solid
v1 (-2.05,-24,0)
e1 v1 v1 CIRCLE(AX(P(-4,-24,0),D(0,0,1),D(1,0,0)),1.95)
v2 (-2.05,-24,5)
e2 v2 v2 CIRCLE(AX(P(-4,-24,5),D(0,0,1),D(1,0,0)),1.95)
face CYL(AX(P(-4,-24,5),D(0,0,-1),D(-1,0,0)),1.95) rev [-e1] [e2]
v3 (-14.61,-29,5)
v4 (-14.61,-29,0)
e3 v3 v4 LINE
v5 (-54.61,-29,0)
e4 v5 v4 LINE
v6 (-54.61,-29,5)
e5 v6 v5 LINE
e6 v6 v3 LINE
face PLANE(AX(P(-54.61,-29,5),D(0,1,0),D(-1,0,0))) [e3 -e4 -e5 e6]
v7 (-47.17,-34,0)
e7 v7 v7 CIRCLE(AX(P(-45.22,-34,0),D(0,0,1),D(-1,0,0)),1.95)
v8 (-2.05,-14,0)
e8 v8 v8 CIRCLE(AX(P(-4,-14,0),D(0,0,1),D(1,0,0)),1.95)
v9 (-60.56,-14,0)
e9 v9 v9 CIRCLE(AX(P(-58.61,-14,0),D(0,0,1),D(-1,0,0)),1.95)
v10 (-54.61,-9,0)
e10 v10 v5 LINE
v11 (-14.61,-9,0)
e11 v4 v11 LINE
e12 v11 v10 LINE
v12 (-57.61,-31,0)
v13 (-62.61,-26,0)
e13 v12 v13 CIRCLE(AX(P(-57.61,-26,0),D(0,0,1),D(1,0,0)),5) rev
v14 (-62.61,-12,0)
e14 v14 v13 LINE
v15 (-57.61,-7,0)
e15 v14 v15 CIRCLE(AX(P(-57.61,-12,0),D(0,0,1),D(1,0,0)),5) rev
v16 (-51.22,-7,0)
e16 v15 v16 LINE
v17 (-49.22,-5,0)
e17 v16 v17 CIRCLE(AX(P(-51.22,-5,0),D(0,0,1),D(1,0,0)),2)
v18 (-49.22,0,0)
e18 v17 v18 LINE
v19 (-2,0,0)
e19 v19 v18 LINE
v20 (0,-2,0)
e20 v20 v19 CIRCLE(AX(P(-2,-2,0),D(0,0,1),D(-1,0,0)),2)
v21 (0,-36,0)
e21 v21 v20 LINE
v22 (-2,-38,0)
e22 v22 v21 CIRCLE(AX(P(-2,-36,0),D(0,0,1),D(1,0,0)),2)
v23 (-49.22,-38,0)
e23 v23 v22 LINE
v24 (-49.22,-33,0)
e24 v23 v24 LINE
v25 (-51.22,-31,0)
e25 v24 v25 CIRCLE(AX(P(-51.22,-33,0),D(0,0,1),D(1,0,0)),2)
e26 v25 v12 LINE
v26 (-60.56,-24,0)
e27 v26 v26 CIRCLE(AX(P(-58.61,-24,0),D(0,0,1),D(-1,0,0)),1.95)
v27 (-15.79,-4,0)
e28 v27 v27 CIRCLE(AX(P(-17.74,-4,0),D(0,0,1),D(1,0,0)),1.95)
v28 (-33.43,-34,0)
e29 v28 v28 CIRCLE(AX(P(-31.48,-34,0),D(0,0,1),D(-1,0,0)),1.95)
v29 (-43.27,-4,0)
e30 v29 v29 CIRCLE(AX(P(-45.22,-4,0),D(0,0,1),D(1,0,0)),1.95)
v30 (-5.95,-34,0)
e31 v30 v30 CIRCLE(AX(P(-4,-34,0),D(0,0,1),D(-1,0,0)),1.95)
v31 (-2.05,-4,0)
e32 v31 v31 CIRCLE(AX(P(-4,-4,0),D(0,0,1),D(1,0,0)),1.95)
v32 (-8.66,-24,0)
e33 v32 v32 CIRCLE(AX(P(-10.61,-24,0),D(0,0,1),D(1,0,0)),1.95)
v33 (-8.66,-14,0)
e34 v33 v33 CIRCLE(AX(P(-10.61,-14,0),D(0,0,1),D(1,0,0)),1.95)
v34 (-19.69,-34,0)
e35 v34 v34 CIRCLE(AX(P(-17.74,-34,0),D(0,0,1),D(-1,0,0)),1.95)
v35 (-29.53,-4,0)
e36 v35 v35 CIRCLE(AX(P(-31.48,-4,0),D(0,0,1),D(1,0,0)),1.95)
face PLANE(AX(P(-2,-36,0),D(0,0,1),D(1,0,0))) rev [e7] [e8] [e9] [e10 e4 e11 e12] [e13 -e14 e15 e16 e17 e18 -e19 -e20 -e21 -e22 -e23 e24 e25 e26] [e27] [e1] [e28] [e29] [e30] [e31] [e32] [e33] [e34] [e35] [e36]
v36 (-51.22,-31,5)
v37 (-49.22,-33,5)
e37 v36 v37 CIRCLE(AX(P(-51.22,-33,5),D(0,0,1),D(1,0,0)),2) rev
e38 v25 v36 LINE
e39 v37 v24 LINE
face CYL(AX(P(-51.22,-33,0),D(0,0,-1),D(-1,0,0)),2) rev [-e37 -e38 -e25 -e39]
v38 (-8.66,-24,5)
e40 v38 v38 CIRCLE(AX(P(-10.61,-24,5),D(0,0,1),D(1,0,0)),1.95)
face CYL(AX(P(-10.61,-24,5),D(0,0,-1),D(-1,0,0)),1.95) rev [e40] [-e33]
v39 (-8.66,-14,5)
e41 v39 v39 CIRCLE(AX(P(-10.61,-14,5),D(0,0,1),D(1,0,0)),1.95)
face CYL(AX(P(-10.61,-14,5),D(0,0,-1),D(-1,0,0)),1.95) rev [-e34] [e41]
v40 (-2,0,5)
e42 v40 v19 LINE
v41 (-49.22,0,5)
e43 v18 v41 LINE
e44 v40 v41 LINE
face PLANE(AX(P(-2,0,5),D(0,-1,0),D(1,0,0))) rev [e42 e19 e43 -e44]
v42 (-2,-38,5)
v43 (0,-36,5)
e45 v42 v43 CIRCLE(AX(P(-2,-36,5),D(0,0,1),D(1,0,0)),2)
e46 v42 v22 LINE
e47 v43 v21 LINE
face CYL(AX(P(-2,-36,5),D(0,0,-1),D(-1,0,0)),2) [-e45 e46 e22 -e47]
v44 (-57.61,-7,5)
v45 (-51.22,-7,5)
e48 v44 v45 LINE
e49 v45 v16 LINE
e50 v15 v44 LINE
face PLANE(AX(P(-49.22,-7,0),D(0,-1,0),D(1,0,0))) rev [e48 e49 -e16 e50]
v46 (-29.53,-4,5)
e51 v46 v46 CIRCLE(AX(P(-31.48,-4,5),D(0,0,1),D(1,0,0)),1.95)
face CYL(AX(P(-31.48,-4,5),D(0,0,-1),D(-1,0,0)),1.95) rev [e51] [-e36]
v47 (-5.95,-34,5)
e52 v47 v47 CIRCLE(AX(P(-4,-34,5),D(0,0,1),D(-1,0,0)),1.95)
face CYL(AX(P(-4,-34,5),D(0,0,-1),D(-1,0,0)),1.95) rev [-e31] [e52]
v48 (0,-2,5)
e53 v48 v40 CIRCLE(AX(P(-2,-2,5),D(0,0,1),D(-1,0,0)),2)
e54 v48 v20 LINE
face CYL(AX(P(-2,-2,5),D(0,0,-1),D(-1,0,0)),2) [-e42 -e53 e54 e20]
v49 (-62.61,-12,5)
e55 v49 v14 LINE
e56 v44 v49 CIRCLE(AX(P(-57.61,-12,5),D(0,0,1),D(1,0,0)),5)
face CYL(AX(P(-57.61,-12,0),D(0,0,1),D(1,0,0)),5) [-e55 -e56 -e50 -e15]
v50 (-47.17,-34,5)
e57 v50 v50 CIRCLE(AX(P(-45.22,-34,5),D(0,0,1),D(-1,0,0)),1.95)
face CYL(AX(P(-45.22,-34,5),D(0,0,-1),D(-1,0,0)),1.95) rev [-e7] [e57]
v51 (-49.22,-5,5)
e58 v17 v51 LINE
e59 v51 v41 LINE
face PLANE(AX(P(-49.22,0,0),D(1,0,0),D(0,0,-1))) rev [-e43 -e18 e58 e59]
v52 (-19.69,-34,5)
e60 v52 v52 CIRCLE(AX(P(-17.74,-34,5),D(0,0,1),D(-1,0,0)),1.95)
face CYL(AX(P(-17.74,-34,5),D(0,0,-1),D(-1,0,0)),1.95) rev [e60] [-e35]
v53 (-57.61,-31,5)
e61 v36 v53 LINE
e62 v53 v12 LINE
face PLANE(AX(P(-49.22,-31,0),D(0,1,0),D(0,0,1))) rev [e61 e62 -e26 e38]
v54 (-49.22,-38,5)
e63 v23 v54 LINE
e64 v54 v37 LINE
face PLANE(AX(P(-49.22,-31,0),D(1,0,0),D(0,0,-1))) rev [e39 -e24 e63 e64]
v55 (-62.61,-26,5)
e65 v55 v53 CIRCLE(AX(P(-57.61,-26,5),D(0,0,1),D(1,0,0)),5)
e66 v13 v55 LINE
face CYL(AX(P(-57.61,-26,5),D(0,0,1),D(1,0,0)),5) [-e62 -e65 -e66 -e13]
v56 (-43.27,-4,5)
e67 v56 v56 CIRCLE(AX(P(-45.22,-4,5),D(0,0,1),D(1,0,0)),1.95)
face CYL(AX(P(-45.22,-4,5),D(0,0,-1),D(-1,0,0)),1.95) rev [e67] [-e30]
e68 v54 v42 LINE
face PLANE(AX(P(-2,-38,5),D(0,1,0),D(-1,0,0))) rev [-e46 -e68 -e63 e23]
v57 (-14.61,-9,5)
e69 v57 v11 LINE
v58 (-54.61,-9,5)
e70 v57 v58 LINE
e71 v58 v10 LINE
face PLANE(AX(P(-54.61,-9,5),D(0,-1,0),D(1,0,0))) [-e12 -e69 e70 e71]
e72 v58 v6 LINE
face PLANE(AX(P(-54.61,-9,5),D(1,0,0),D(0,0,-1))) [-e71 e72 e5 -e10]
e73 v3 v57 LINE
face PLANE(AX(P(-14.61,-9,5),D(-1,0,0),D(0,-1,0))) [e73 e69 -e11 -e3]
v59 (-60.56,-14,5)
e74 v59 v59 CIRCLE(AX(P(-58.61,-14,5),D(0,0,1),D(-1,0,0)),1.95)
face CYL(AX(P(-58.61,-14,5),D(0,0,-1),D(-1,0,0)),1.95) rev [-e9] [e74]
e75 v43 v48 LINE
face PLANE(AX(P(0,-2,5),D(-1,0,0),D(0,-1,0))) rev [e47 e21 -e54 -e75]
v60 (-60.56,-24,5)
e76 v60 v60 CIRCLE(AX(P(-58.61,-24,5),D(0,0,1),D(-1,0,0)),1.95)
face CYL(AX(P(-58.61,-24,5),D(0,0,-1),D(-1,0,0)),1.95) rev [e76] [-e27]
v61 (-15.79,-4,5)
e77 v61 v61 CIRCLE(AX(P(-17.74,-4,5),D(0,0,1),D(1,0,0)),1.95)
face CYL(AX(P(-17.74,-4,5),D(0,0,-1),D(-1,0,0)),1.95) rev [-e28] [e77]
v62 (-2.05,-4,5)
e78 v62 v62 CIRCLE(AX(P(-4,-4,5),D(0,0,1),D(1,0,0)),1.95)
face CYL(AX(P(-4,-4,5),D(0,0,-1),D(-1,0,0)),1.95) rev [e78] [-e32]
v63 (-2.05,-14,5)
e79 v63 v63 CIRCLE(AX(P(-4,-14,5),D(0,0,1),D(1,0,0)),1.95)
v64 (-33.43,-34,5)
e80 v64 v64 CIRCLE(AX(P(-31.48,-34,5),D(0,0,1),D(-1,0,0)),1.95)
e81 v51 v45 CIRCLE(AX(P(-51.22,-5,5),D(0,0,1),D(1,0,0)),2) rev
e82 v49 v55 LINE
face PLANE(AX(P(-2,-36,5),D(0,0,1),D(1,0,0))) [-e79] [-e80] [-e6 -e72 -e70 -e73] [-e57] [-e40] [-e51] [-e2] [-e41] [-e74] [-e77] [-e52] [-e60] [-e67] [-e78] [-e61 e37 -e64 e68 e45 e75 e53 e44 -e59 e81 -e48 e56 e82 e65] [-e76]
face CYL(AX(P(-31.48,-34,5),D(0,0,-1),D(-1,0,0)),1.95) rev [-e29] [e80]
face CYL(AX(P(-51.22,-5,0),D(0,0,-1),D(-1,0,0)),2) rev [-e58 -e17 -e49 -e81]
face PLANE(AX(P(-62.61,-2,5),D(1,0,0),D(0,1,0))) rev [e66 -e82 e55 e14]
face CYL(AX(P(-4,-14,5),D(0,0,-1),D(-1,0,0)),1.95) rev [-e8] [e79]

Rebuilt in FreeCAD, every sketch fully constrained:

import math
import FreeCAD as App
import Part
import Sketcher


def edges_at(feature, points):
    """Names of the edges that pass closest to the given points."""
    edges = feature.Shape.Edges
    near = lambda p: min(range(len(edges)), key=lambda i: edges[i].distToShape(Part.Vertex(*p))[0])
    return sorted({f"Edge{near(p) + 1}" for p in points})

doc = App.newDocument("Part")
body = doc.addObject("PartDesign::Body", "Body")

# Sketch on XY plane
sketch1 = body.newObject("Sketcher::SketchObject", "Sketch")
sketch1.AttachmentSupport = (doc.getObject("XY_Plane"), [""])
sketch1.MapMode = "FlatFace"
sketch1.addGeometry([
    Part.LineSegment(App.Vector(-2, 0, 0), App.Vector(-60.6, 0, 0)),  # 0
    Part.ArcOfCircle(Part.Circle(App.Vector(-60.6, -2, 0), App.Vector(0, 0, 1), 2), math.radians(90), math.radians(180)),  # 1
    Part.LineSegment(App.Vector(-62.6, -2, 0), App.Vector(-62.6, -36, 0)),  # 2
    Part.ArcOfCircle(Part.Circle(App.Vector(-60.6, -36, 0), App.Vector(0, 0, 1), 2), math.radians(-180), math.radians(-90)),  # 3
    Part.LineSegment(App.Vector(-60.6, -38, 0), App.Vector(-2, -38, 0)),  # 4
    Part.ArcOfCircle(Part.Circle(App.Vector(-2, -36, 0), App.Vector(0, 0, 1), 2), math.radians(-90), math.radians(0)),  # 5
    Part.LineSegment(App.Vector(0, -36, 0), App.Vector(0, -2, 0)),  # 6
    Part.ArcOfCircle(Part.Circle(App.Vector(-2, -2, 0), App.Vector(0, 0, 1), 2), math.radians(0), math.radians(90)),  # 7
    Part.Circle(App.Vector(-58.6, -34, 0), App.Vector(0, 0, 1), 1.9),  # 8
    Part.Circle(App.Vector(-45.2, -34, 0), App.Vector(0, 0, 1), 1.9),  # 9
    Part.Circle(App.Vector(-31.5, -34, 0), App.Vector(0, 0, 1), 1.9),  # 10
    Part.Circle(App.Vector(-58.6, -24, 0), App.Vector(0, 0, 1), 1.9),  # 11
    Part.Circle(App.Vector(-17.7, -34, 0), App.Vector(0, 0, 1), 1.9),  # 12
    Part.Circle(App.Vector(-4, -34, 0), App.Vector(0, 0, 1), 1.9),  # 13
    Part.Circle(App.Vector(-10.6, -24, 0), App.Vector(0, 0, 1), 1.9),  # 14
    Part.Circle(App.Vector(-4, -24, 0), App.Vector(0, 0, 1), 1.9),  # 15
    Part.Circle(App.Vector(-58.6, -14, 0), App.Vector(0, 0, 1), 1.9),  # 16
    Part.LineSegment(App.Vector(-14.6, -29, 0), App.Vector(-54.6, -29, 0)),  # 17
    Part.LineSegment(App.Vector(-54.6, -29, 0), App.Vector(-54.6, -9, 0)),  # 18
    Part.LineSegment(App.Vector(-54.6, -9, 0), App.Vector(-14.6, -9, 0)),  # 19
    Part.LineSegment(App.Vector(-14.6, -9, 0), App.Vector(-14.6, -29, 0)),  # 20
    Part.Circle(App.Vector(-58.6, -4, 0), App.Vector(0, 0, 1), 1.9),  # 21
    Part.Circle(App.Vector(-45.2, -4, 0), App.Vector(0, 0, 1), 1.9),  # 22
    Part.Circle(App.Vector(-31.5, -4, 0), App.Vector(0, 0, 1), 1.9),  # 23
    Part.Circle(App.Vector(-10.6, -14, 0), App.Vector(0, 0, 1), 1.9),  # 24
    Part.Circle(App.Vector(-4, -14, 0), App.Vector(0, 0, 1), 1.9),  # 25
    Part.Circle(App.Vector(-17.7, -4, 0), App.Vector(0, 0, 1), 1.9),  # 26
    Part.Circle(App.Vector(-4, -4, 0), App.Vector(0, 0, 1), 1.9),  # 27
], False)
sketch1.addConstraint([
    Sketcher.Constraint("Tangent", 0, 2, 1, 1),
    Sketcher.Constraint("Tangent", 1, 2, 2, 1),
    Sketcher.Constraint("Tangent", 2, 2, 3, 1),
    Sketcher.Constraint("Tangent", 3, 2, 4, 1),
    Sketcher.Constraint("Tangent", 4, 2, 5, 1),
    Sketcher.Constraint("Tangent", 5, 2, 6, 1),
    Sketcher.Constraint("Tangent", 6, 2, 7, 1),
    Sketcher.Constraint("Tangent", 7, 2, 0, 1),
    Sketcher.Constraint("Coincident", 17, 2, 18, 1),
    Sketcher.Constraint("Coincident", 18, 2, 19, 1),
    Sketcher.Constraint("Coincident", 19, 2, 20, 1),
    Sketcher.Constraint("Coincident", 20, 2, 17, 1),
    Sketcher.Constraint("Horizontal", 0),
    Sketcher.Constraint("Vertical", 2),
    Sketcher.Constraint("Horizontal", 4),
    Sketcher.Constraint("Vertical", 6),
    Sketcher.Constraint("Horizontal", 17),
    Sketcher.Constraint("Vertical", 18),
    Sketcher.Constraint("Horizontal", 19),
    Sketcher.Constraint("Vertical", 20),
    Sketcher.Constraint("Equal", 1, 3),
    Sketcher.Constraint("Equal", 3, 5),
    Sketcher.Constraint("Equal", 5, 7),
    Sketcher.Constraint("Equal", 8, 9),
    Sketcher.Constraint("Equal", 9, 10),
    Sketcher.Constraint("Equal", 10, 11),
    Sketcher.Constraint("Equal", 11, 12),
    Sketcher.Constraint("Equal", 12, 13),
    Sketcher.Constraint("Equal", 13, 14),
    Sketcher.Constraint("Equal", 14, 15),
    Sketcher.Constraint("Equal", 15, 16),
    Sketcher.Constraint("Equal", 16, 21),
    Sketcher.Constraint("Equal", 21, 22),
    Sketcher.Constraint("Equal", 22, 23),
    Sketcher.Constraint("Equal", 23, 24),
    Sketcher.Constraint("Equal", 24, 25),
    Sketcher.Constraint("Equal", 25, 26),
    Sketcher.Constraint("Equal", 26, 27),
    Sketcher.Constraint("PointOnObject", 0, 2, -1),
    Sketcher.Constraint("PointOnObject", 5, 2, -2),
    Sketcher.Constraint("Horizontal", 8, 3, 9, 3),
    Sketcher.Constraint("Horizontal", 9, 3, 10, 3),
    Sketcher.Constraint("Horizontal", 10, 3, 12, 3),
    Sketcher.Constraint("Horizontal", 12, 3, 13, 3),
    Sketcher.Constraint("Horizontal", 11, 3, 14, 3),
    Sketcher.Constraint("Horizontal", 14, 3, 15, 3),
    Sketcher.Constraint("Horizontal", 21, 3, 22, 3),
    Sketcher.Constraint("Horizontal", 22, 3, 23, 3),
    Sketcher.Constraint("Horizontal", 16, 3, 24, 3),
    Sketcher.Constraint("Horizontal", 24, 3, 25, 3),
    Sketcher.Constraint("Horizontal", 23, 3, 26, 3),
    Sketcher.Constraint("Horizontal", 26, 3, 27, 3),
    Sketcher.Constraint("Vertical", 8, 3, 11, 3),
    Sketcher.Constraint("Vertical", 13, 3, 15, 3),
    Sketcher.Constraint("Vertical", 11, 3, 16, 3),
    Sketcher.Constraint("Vertical", 16, 3, 21, 3),
    Sketcher.Constraint("Vertical", 9, 3, 22, 3),
    Sketcher.Constraint("Vertical", 10, 3, 23, 3),
    Sketcher.Constraint("Vertical", 14, 3, 24, 3),
    Sketcher.Constraint("Vertical", 15, 3, 25, 3),
    Sketcher.Constraint("Vertical", 12, 3, 26, 3),
    Sketcher.Constraint("Vertical", 25, 3, 27, 3),
    Sketcher.Constraint("Radius", 1, 2.0),
    Sketcher.Constraint("Diameter", 8, 3.9),
    Sketcher.Constraint("DistanceX", 17, 2, 17, 1, 40.0),
    Sketcher.Constraint("DistanceY", 2, 2, 2, 1, 34.0),
    Sketcher.Constraint("DistanceY", 18, 1, 18, 2, 20.0),
    Sketcher.Constraint("DistanceY", 8, 3, -1, 1, 34.0),
    Sketcher.Constraint("DistanceY", 11, 3, -1, 1, 24.0),
    Sketcher.Constraint("DistanceX", 13, 3, -1, 1, 4.0),
    Sketcher.Constraint("DistanceY", 16, 3, -1, 1, 14.0),
    Sketcher.Constraint("DistanceY", 21, 3, -1, 1, 4.0),
    Sketcher.Constraint("DistanceY", 17, 2, -1, 1, 29.0),
    Sketcher.Constraint("DistanceX", 3, 3, 8, 3, 2.0),
    Sketcher.Constraint("DistanceX", 8, 3, 17, 2, 4.0),
    Sketcher.Constraint("DistanceX", 19, 2, 24, 3, 4.0),
    Sketcher.Constraint("DistanceX", 0, 2, 0, 1, 58.61),
    Sketcher.Constraint("DistanceX", 9, 3, -1, 1, 45.22),
    Sketcher.Constraint("DistanceX", 10, 3, -1, 1, 31.48),
    Sketcher.Constraint("DistanceX", 12, 3, -1, 1, 17.74),
])
pad1 = body.newObject("PartDesign::Pad", "Pad")
pad1.Profile = sketch1
pad1.Length = 5

# Sketch on XY plane
sketch2 = body.newObject("Sketcher::SketchObject", "Sketch001")
sketch2.AttachmentSupport = (doc.getObject("XY_Plane"), [""])
sketch2.MapMode = "FlatFace"
sketch2.AttachmentOffset = App.Placement(App.Vector(0, 0, 5), App.Rotation())
sketch2.addGeometry([
    Part.LineSegment(App.Vector(-63, 0, 0), App.Vector(-63, -7, 0)),  # 0
    Part.LineSegment(App.Vector(-63, -7, 0), App.Vector(-49, -7, 0)),  # 1
    Part.LineSegment(App.Vector(-49, -7, 0), App.Vector(-49, 0, 0)),  # 2
    Part.LineSegment(App.Vector(-49, 0, 0), App.Vector(-63, 0, 0)),  # 3
    Part.LineSegment(App.Vector(-63, -31, 0), App.Vector(-63, -38, 0)),  # 4
    Part.LineSegment(App.Vector(-63, -38, 0), App.Vector(-49, -38, 0)),  # 5
    Part.LineSegment(App.Vector(-49, -38, 0), App.Vector(-49, -31, 0)),  # 6
    Part.LineSegment(App.Vector(-49, -31, 0), App.Vector(-63, -31, 0)),  # 7
], False)
sketch2.addConstraint([
    Sketcher.Constraint("Coincident", 0, 2, 1, 1),
    Sketcher.Constraint("Coincident", 1, 2, 2, 1),
    Sketcher.Constraint("Coincident", 2, 2, 3, 1),
    Sketcher.Constraint("Coincident", 3, 2, 0, 1),
    Sketcher.Constraint("Coincident", 4, 2, 5, 1),
    Sketcher.Constraint("Coincident", 5, 2, 6, 1),
    Sketcher.Constraint("Coincident", 6, 2, 7, 1),
    Sketcher.Constraint("Coincident", 7, 2, 4, 1),
    Sketcher.Constraint("Vertical", 0),
    Sketcher.Constraint("Horizontal", 1),
    Sketcher.Constraint("Vertical", 2),
    Sketcher.Constraint("Horizontal", 3),
    Sketcher.Constraint("Vertical", 4),
    Sketcher.Constraint("Horizontal", 5),
    Sketcher.Constraint("Vertical", 6),
    Sketcher.Constraint("Horizontal", 7),
    Sketcher.Constraint("PointOnObject", 2, 2, -1),
    Sketcher.Constraint("Vertical", 3, 2, 4, 2),
    Sketcher.Constraint("Vertical", 2, 2, 5, 2),
    Sketcher.Constraint("Equal", 2, 4),
    Sketcher.Constraint("DistanceY", 0, 2, 0, 1, 7.0),
    Sketcher.Constraint("DistanceY", 4, 2, -1, 1, 38.0),
    Sketcher.Constraint("DistanceX", 1, 1, 1, 2, 13.39),
    Sketcher.Constraint("DistanceX", 0, 2, -1, 1, 62.61),
])
pocket1 = body.newObject("PartDesign::Pocket", "Pocket")
pocket1.Profile = sketch2
pocket1.Type = "ThroughAll"
doc.recompute()

fillet = body.newObject("PartDesign::Fillet", "Fillet")
fillet.Base = (pocket1, edges_at(pocket1, [(-49.22, -7, 2.5), (-49.22, -31, 2.5)]))
fillet.Radius = 2
doc.recompute()

fillet2 = body.newObject("PartDesign::Fillet", "Fillet001")
fillet2.Base = (fillet, edges_at(fillet, [(-62.61, -7, 2.5), (-62.61, -31, 2.5)]))
fillet2.Radius = 5

doc.recompute()
